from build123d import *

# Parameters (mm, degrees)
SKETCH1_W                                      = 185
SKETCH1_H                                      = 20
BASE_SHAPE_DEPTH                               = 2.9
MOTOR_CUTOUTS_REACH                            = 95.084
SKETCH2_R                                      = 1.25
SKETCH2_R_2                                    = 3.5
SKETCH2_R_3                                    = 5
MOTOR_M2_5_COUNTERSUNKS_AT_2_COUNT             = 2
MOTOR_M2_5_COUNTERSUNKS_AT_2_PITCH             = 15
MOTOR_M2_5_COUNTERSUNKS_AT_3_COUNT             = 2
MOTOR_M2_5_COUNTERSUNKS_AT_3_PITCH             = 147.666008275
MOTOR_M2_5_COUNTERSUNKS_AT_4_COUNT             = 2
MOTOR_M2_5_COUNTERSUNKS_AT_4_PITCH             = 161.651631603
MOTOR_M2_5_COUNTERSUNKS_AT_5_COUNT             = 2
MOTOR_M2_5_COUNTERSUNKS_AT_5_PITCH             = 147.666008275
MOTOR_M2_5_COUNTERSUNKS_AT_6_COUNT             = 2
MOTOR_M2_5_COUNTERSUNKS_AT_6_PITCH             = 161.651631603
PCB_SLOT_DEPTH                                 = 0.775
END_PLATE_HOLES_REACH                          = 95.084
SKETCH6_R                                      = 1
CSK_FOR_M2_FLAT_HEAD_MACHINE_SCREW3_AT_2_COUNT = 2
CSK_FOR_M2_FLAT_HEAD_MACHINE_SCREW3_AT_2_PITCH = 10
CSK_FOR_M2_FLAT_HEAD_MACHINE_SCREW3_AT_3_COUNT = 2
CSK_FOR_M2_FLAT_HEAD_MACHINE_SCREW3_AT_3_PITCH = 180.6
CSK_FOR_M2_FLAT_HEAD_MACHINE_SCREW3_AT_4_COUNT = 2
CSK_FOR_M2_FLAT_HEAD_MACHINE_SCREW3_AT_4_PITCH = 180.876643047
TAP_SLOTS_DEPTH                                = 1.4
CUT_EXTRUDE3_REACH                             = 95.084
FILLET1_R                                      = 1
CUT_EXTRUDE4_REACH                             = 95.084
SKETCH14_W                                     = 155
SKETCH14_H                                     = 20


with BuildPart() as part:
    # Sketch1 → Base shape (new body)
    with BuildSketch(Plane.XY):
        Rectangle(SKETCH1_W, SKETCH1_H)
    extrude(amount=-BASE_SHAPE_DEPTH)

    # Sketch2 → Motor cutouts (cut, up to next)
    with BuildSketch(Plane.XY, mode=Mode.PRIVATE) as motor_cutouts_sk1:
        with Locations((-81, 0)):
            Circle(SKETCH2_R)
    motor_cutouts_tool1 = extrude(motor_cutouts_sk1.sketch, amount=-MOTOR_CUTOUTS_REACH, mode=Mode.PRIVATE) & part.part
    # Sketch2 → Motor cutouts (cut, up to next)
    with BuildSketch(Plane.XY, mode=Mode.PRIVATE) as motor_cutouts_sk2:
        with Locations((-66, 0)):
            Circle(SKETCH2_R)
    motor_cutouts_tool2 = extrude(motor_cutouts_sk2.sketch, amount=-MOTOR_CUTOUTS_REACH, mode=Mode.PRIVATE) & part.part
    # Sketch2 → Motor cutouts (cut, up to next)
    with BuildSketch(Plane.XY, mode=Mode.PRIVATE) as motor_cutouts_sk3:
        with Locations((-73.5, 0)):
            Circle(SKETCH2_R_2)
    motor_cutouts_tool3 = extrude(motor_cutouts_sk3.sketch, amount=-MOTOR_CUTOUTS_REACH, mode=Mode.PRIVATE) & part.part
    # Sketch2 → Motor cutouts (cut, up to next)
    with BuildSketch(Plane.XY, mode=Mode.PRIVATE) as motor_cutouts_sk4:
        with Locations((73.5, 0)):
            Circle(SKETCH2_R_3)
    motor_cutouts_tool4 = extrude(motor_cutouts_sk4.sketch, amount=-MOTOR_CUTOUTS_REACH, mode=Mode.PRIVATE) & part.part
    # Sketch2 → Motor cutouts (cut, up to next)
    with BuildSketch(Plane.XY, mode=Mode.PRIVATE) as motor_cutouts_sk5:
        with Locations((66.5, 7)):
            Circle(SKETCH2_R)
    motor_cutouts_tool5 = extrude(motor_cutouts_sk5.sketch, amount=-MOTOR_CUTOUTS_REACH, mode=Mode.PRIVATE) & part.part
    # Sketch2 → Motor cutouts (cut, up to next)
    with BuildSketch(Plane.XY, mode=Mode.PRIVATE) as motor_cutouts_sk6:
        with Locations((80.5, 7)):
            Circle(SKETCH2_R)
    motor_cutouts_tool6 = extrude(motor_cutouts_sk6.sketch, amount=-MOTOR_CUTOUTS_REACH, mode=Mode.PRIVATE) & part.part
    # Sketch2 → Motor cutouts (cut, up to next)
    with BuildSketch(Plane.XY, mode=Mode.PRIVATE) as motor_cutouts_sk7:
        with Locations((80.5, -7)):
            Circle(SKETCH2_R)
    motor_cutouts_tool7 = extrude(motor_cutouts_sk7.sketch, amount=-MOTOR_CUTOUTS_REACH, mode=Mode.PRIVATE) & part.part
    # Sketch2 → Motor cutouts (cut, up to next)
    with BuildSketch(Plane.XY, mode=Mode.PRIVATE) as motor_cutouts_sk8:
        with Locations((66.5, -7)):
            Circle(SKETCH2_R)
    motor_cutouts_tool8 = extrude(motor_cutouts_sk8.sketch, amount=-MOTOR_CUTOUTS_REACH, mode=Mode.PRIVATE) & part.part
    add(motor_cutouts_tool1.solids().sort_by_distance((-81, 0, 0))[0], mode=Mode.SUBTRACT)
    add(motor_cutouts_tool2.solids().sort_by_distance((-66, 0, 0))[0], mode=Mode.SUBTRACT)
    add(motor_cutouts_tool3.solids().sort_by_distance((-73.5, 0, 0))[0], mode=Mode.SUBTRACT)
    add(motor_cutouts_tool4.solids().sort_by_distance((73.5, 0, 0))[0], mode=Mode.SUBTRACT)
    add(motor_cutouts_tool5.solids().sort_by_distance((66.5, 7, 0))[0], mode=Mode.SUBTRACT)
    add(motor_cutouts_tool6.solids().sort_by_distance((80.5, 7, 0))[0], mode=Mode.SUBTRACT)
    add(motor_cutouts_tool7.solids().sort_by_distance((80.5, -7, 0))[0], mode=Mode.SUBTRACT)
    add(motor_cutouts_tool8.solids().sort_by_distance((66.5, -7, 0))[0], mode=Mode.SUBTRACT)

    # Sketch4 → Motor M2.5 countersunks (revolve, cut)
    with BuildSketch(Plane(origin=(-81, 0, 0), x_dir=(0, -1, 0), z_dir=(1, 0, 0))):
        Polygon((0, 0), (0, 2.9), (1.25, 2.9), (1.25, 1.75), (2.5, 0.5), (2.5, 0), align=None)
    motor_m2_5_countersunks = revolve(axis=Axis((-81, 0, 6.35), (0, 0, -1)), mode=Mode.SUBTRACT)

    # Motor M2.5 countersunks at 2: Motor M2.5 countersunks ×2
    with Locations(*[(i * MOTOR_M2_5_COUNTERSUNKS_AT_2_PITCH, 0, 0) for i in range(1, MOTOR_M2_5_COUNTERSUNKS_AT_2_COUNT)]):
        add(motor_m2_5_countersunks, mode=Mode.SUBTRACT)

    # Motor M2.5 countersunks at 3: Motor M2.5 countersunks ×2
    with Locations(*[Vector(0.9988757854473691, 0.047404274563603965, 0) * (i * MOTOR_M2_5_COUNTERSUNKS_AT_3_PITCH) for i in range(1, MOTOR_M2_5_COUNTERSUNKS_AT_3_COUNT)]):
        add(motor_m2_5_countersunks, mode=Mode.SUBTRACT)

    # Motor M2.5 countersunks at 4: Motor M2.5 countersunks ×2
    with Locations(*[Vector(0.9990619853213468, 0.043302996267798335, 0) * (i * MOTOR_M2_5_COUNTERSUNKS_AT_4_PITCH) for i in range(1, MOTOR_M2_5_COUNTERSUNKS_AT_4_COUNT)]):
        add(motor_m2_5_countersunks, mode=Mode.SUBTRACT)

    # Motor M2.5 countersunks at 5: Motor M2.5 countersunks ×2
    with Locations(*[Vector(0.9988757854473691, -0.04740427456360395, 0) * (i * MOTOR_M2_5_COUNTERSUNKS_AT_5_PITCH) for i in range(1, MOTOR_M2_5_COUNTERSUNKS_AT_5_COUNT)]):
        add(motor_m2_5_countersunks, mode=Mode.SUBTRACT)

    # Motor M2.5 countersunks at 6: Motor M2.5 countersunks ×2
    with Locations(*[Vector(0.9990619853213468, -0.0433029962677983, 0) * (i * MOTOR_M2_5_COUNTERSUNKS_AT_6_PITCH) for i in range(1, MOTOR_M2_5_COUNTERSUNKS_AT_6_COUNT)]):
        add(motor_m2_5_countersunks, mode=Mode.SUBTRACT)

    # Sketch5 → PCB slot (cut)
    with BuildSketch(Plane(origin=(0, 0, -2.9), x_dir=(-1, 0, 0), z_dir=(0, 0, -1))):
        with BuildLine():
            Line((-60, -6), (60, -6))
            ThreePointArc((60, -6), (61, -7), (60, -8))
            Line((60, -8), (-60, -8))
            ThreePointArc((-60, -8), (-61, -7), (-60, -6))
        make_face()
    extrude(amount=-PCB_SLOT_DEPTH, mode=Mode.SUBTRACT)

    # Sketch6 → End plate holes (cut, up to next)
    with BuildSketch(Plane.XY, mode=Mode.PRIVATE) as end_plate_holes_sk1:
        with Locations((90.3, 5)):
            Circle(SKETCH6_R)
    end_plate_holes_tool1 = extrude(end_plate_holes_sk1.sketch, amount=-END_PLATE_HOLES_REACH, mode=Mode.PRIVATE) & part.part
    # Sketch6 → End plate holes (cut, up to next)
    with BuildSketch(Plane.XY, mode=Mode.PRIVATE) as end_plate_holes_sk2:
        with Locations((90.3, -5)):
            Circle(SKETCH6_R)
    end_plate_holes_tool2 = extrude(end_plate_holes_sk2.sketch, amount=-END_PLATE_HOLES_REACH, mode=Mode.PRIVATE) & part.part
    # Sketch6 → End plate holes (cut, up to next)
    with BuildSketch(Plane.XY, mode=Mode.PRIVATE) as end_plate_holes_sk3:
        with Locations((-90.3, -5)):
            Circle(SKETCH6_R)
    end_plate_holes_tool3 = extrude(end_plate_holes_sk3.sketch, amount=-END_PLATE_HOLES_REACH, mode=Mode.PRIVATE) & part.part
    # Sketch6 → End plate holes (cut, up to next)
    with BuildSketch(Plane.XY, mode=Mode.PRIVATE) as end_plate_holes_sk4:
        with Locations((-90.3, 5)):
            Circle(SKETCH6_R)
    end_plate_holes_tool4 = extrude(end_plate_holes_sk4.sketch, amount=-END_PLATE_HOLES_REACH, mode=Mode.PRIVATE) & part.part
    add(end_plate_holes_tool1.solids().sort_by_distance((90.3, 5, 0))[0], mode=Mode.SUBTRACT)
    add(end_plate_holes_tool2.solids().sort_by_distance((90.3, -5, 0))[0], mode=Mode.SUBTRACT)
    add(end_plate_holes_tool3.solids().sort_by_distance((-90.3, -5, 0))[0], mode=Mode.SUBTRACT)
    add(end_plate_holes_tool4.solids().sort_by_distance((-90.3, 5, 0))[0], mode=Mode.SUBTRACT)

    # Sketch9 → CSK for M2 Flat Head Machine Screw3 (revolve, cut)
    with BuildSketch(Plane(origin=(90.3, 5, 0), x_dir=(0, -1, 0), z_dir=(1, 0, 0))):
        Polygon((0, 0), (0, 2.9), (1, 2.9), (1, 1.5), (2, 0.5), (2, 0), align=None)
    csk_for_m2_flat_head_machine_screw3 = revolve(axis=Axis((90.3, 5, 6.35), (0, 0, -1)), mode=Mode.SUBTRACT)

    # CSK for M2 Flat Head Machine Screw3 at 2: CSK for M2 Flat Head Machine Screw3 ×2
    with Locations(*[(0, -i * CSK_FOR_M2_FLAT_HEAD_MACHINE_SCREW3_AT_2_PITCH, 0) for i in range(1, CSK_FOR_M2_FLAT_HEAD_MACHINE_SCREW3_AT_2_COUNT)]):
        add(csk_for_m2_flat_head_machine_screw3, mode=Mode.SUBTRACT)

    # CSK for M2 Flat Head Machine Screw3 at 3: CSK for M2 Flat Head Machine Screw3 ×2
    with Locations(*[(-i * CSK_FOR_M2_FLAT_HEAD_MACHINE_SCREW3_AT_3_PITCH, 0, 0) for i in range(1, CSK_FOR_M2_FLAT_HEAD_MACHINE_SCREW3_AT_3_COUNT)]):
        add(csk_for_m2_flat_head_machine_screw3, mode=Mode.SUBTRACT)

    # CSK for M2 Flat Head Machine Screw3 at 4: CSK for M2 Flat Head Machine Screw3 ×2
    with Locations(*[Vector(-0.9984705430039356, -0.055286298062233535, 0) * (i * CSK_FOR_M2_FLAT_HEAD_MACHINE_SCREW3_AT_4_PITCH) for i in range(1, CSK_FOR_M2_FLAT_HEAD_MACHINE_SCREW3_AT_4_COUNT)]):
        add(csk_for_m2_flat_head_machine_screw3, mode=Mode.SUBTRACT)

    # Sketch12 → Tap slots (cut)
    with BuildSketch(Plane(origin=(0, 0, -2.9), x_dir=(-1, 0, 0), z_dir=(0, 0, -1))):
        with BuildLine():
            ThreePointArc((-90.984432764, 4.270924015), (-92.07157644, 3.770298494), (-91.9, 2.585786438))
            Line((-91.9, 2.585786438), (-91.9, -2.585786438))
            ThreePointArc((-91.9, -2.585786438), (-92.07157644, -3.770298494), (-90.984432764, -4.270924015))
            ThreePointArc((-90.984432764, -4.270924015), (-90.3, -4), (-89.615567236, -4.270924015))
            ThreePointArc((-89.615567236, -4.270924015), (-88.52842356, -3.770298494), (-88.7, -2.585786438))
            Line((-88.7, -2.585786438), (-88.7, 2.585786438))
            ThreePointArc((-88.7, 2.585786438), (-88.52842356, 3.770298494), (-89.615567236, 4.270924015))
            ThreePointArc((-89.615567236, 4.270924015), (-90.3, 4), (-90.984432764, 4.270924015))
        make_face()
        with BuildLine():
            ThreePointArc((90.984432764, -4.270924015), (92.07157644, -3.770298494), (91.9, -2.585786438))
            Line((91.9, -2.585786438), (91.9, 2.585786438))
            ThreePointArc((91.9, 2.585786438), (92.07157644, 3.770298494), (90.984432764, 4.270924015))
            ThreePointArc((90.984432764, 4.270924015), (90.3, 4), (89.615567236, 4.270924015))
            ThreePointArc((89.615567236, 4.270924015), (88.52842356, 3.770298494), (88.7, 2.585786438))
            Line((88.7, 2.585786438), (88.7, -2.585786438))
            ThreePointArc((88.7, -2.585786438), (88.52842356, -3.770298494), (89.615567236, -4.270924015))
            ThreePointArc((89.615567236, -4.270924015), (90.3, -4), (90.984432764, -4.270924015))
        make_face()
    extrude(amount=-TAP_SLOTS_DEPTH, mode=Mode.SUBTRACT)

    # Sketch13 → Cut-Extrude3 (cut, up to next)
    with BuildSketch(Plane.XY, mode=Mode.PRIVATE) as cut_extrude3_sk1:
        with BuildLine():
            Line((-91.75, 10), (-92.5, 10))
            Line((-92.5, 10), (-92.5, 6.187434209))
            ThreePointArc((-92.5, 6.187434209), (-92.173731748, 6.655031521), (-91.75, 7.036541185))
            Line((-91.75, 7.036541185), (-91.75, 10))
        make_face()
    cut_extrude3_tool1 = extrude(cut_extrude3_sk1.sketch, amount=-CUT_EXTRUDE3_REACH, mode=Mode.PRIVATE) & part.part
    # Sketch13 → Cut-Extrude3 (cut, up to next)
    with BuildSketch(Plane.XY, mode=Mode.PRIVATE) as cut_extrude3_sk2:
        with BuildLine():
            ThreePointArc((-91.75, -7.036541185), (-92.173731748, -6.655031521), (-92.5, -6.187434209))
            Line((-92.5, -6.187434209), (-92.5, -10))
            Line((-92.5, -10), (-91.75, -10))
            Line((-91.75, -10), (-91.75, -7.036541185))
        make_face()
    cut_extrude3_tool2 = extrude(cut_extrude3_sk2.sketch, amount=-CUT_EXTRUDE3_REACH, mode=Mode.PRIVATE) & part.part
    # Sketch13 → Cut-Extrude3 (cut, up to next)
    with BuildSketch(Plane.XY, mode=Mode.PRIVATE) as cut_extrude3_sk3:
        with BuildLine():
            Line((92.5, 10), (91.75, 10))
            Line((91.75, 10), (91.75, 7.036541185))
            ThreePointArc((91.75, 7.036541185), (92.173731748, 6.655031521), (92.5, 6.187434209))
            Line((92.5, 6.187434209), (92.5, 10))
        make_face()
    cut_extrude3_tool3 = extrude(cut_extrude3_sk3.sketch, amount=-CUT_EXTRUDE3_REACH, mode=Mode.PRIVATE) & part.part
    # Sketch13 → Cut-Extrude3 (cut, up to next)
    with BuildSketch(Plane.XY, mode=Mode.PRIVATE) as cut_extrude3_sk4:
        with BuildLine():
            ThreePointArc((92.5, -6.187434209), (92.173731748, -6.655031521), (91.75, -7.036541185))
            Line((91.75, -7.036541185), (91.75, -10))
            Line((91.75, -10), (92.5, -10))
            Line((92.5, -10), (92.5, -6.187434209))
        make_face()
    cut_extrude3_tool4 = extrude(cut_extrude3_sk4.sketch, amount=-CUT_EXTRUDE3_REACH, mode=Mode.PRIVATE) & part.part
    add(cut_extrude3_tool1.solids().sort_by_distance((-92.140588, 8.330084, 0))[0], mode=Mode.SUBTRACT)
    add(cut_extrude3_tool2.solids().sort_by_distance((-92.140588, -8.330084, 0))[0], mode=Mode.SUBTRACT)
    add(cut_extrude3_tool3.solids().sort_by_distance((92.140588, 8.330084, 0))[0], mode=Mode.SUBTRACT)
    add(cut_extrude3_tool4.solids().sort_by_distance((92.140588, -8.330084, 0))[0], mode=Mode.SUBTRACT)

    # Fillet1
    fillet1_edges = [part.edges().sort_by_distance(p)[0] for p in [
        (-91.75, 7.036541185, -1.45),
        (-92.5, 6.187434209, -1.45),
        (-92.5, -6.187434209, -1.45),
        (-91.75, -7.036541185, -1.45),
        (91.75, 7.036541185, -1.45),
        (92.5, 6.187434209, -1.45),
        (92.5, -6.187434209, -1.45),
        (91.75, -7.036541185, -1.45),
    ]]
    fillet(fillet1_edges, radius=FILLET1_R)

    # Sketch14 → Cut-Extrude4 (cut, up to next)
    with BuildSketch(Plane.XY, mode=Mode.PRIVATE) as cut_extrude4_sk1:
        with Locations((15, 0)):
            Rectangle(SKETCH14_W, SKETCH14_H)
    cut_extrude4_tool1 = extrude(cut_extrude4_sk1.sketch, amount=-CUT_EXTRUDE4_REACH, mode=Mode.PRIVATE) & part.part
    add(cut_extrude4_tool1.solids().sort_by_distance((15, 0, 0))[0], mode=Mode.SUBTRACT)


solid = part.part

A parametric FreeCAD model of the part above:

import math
import FreeCAD as App
import Part
import Sketcher
from FreeCAD import Vector
Q = App.Units.Quantity


def edges_at(feature, points):
    """Names of the edges that pass closest to the given points."""
    edges = feature.Shape.Edges
    near = lambda p: min(range(len(edges)), key=lambda i: edges[i].distToShape(Part.Vertex(*p))[0])
    return sorted({f"Edge{near(p) + 1}" for p in points})

doc = App.newDocument("Part")
params = doc.addObject("Spreadsheet::Sheet", "Params")
for row, (alias, value) in enumerate([
    ("sketch1_width", "185 mm"),
    ("sketch1_height", "20 mm"),
    ("pad1_length", "2.9 mm"),
    ("sketch2_diameter", "2.5 mm"),
    ("sketch3_diameter", "2.5 mm"),
    ("sketch4_diameter", "7 mm"),
    ("sketch5_diameter", "10 mm"),
    ("sketch6_diameter", "2.5 mm"),
    ("sketch7_diameter", "2.5 mm"),
    ("sketch8_diameter", "2.5 mm"),
    ("sketch9_diameter", "2.5 mm"),
    ("sketch10_width", "2.5 mm"),
    ("sketch10_height", "2.9 mm"),
    ("sketch10_height2", "0.5 mm"),
    ("sketch10_width2", "1.25 mm"),
    ("groove_angle", "360 deg"),
    ("linearpattern_pitch", "15 mm"),
    ("linearpattern2_pitch", "147.666008 mm"),
    ("linearpattern3_pitch", "161.651632 mm"),
    ("linearpattern4_pitch", "147.666008 mm"),
    ("linearpattern5_pitch", "161.651632 mm"),
    ("sketch11_radius", "1 mm"),
    ("sketch11_width", "120 mm"),
    ("pocket9_length", "0.775 mm"),
    ("sketch12_diameter", "2 mm"),
    ("sketch13_diameter", "2 mm"),
    ("sketch14_diameter", "2 mm"),
    ("sketch15_diameter", "2 mm"),
    ("sketch16_width", "2 mm"),
    ("sketch16_width2", "1 mm"),
    ("sketch16_height", "2.9 mm"),
    ("sketch16_height2", "0.5 mm"),
    ("groove2_angle", "360 deg"),
    ("linearpattern6_pitch", "10 mm"),
    ("linearpattern7_pitch", "180.6 mm"),
    ("linearpattern8_pitch", "180.876643 mm"),
    ("sketch17_radius", "1 mm"),
    ("pocket14_length", "1.4 mm"),
    ("sketch18_radius", "2.5 mm"),
    ("sketch18_width", "0.75 mm"),
    ("sketch19_radius", "2.5 mm"),
    ("sketch19_width", "0.75 mm"),
    ("sketch20_radius", "2.5 mm"),
    ("sketch20_width", "0.75 mm"),
    ("sketch21_radius", "2.5 mm"),
    ("sketch21_width", "0.75 mm"),
    ("fillet_radius", "1 mm"),
    ("sketch22_width", "155 mm"),
    ("sketch22_height", "20 mm"),
], start=1):
    params.set(f"A{row}", alias)
    params.set(f"B{row}", "=" + value)
    params.setAlias(f"B{row}", alias)

body = doc.addObject("PartDesign::Body", "Body")

# Sketch on XY plane
sketch1 = body.newObject("Sketcher::SketchObject", "Sketch")
sketch1.AttachmentSupport = (doc.getObject("XY_Plane"), [""])
sketch1.MapMode = "FlatFace"
sketch1.addGeometry(Part.LineSegment(Vector(-92.5, 10, 0), Vector(-92.5, -10, 0)), False)
sketch1.addGeometry(Part.LineSegment(Vector(-92.5, -10, 0), Vector(92.5, -10, 0)), False)
sketch1.addGeometry(Part.LineSegment(Vector(92.5, -10, 0), Vector(92.5, 10, 0)), False)
sketch1.addGeometry(Part.LineSegment(Vector(92.5, 10, 0), Vector(-92.5, 10, 0)), False)
sketch1.addConstraint(Sketcher.Constraint("Coincident", 0, 2, 1, 1))
sketch1.addConstraint(Sketcher.Constraint("Coincident", 1, 2, 2, 1))
sketch1.addConstraint(Sketcher.Constraint("Coincident", 2, 2, 3, 1))
sketch1.addConstraint(Sketcher.Constraint("Coincident", 3, 2, 0, 1))
sketch1.addConstraint(Sketcher.Constraint("Vertical", 0))
sketch1.addConstraint(Sketcher.Constraint("Horizontal", 1))
sketch1.addConstraint(Sketcher.Constraint("Vertical", 2))
sketch1.addConstraint(Sketcher.Constraint("Horizontal", 3))
sketch1.addConstraint(Sketcher.Constraint("Symmetric", 0, 2, 2, 2, -1, 1))
sketch1.addConstraint(Sketcher.Constraint("DistanceX", 1, 1, 1, 2, 185.0))
sketch1.addConstraint(Sketcher.Constraint("DistanceY", 0, 2, 0, 1, 20.0))
sketch1.setExpression("Constraints[9]", "Params.sketch1_width")
sketch1.setExpression("Constraints[10]", "Params.sketch1_height")
pad1 = body.newObject("PartDesign::Pad", "Pad")
pad1.Profile = sketch1
pad1.setExpression("Length", "Params.pad1_length")
pad1.Reversed = True

# Sketch on XY plane
sketch2 = body.newObject("Sketcher::SketchObject", "Sketch001")
sketch2.AttachmentSupport = (doc.getObject("XY_Plane"), [""])
sketch2.MapMode = "FlatFace"
sketch2.addGeometry(Part.Circle(Vector(-81, 0, 0), Vector(0, 0, 1), 1.25), False)
sketch2.addConstraint(Sketcher.Constraint("PointOnObject", 0, 3, -1))
sketch2.addConstraint(Sketcher.Constraint("Diameter", 0, 2.5))
sketch2.addConstraint(Sketcher.Constraint("DistanceX", 0, 3, -1, 1, 81.0))
sketch2.setExpression("Constraints[1]", "Params.sketch2_diameter")
pocket1 = body.newObject("PartDesign::Pocket", "Pocket")
pocket1.Profile = sketch2
pocket1.Type = "UpToFirst"

# Sketch on XY plane
sketch3 = body.newObject("Sketcher::SketchObject", "Sketch002")
sketch3.AttachmentSupport = (doc.getObject("XY_Plane"), [""])
sketch3.MapMode = "FlatFace"
sketch3.addGeometry(Part.Circle(Vector(-66, 0, 0), Vector(0, 0, 1), 1.25), False)
sketch3.addConstraint(Sketcher.Constraint("PointOnObject", 0, 3, -1))
sketch3.addConstraint(Sketcher.Constraint("Diameter", 0, 2.5))
sketch3.addConstraint(Sketcher.Constraint("DistanceX", 0, 3, -1, 1, 66.0))
sketch3.setExpression("Constraints[1]", "Params.sketch3_diameter")
pocket2 = body.newObject("PartDesign::Pocket", "Pocket001")
pocket2.Profile = sketch3
pocket2.Type = "UpToFirst"

# Sketch on XY plane
sketch4 = body.newObject("Sketcher::SketchObject", "Sketch003")
sketch4.AttachmentSupport = (doc.getObject("XY_Plane"), [""])
sketch4.MapMode = "FlatFace"
sketch4.addGeometry(Part.Circle(Vector(-73.5, 0, 0), Vector(0, 0, 1), 3.5), False)
sketch4.addConstraint(Sketcher.Constraint("PointOnObject", 0, 3, -1))
sketch4.addConstraint(Sketcher.Constraint("Diameter", 0, 7.0))
sketch4.addConstraint(Sketcher.Constraint("DistanceX", 0, 3, -1, 1, 73.5))
sketch4.setExpression("Constraints[1]", "Params.sketch4_diameter")
pocket3 = body.newObject("PartDesign::Pocket", "Pocket002")
pocket3.Profile = sketch4
pocket3.Type = "UpToFirst"

# Sketch on XY plane
sketch5 = body.newObject("Sketcher::SketchObject", "Sketch004")
sketch5.AttachmentSupport = (doc.getObject("XY_Plane"), [""])
sketch5.MapMode = "FlatFace"
sketch5.addGeometry(Part.Circle(Vector(73.5, 0, 0), Vector(0, 0, 1), 5), False)
sketch5.addConstraint(Sketcher.Constraint("PointOnObject", 0, 3, -1))
sketch5.addConstraint(Sketcher.Constraint("Diameter", 0, 10.0))
sketch5.addConstraint(Sketcher.Constraint("DistanceX", -1, 1, 0, 3, 73.5))
sketch5.setExpression("Constraints[1]", "Params.sketch5_diameter")
pocket4 = body.newObject("PartDesign::Pocket", "Pocket003")
pocket4.Profile = sketch5
pocket4.Type = "UpToFirst"

# Sketch on XY plane
sketch6 = body.newObject("Sketcher::SketchObject", "Sketch005")
sketch6.AttachmentSupport = (doc.getObject("XY_Plane"), [""])
sketch6.MapMode = "FlatFace"
sketch6.addGeometry(Part.Circle(Vector(66.5, 7, 0), Vector(0, 0, 1), 1.25), False)
sketch6.addConstraint(Sketcher.Constraint("Diameter", 0, 2.5))
sketch6.addConstraint(Sketcher.Constraint("DistanceY", -1, 1, 0, 3, 7.0))
sketch6.addConstraint(Sketcher.Constraint("DistanceX", -1, 1, 0, 3, 66.5))
sketch6.setExpression("Constraints[0]", "Params.sketch6_diameter")
pocket5 = body.newObject("PartDesign::Pocket", "Pocket004")
pocket5.Profile = sketch6
pocket5.Type = "UpToFirst"

# Sketch on XY plane
sketch7 = body.newObject("Sketcher::SketchObject", "Sketch006")
sketch7.AttachmentSupport = (doc.getObject("XY_Plane"), [""])
sketch7.MapMode = "FlatFace"
sketch7.addGeometry(Part.Circle(Vector(80.5, 7, 0), Vector(0, 0, 1), 1.25), False)
sketch7.addConstraint(Sketcher.Constraint("Diameter", 0, 2.5))
sketch7.addConstraint(Sketcher.Constraint("DistanceY", -1, 1, 0, 3, 7.0))
sketch7.addConstraint(Sketcher.Constraint("DistanceX", -1, 1, 0, 3, 80.5))
sketch7.setExpression("Constraints[0]", "Params.sketch7_diameter")
pocket6 = body.newObject("PartDesign::Pocket", "Pocket005")
pocket6.Profile = sketch7
pocket6.Type = "UpToFirst"

# Sketch on XY plane
sketch8 = body.newObject("Sketcher::SketchObject", "Sketch007")
sketch8.AttachmentSupport = (doc.getObject("XY_Plane"), [""])
sketch8.MapMode = "FlatFace"
sketch8.addGeometry(Part.Circle(Vector(80.5, -7, 0), Vector(0, 0, 1), 1.25), False)
sketch8.addConstraint(Sketcher.Constraint("Diameter", 0, 2.5))
sketch8.addConstraint(Sketcher.Constraint("DistanceY", 0, 3, -1, 1, 7.0))
sketch8.addConstraint(Sketcher.Constraint("DistanceX", -1, 1, 0, 3, 80.5))
sketch8.setExpression("Constraints[0]", "Params.sketch8_diameter")
pocket7 = body.newObject("PartDesign::Pocket", "Pocket006")
pocket7.Profile = sketch8
pocket7.Type = "UpToFirst"

# Sketch on XY plane
sketch9 = body.newObject("Sketcher::SketchObject", "Sketch008")
sketch9.AttachmentSupport = (doc.getObject("XY_Plane"), [""])
sketch9.MapMode = "FlatFace"
sketch9.addGeometry(Part.Circle(Vector(66.5, -7, 0), Vector(0, 0, 1), 1.25), False)
sketch9.addConstraint(Sketcher.Constraint("Diameter", 0, 2.5))
sketch9.addConstraint(Sketcher.Constraint("DistanceY", 0, 3, -1, 1, 7.0))
sketch9.addConstraint(Sketcher.Constraint("DistanceX", -1, 1, 0, 3, 66.5))
sketch9.setExpression("Constraints[0]", "Params.sketch9_diameter")
pocket8 = body.newObject("PartDesign::Pocket", "Pocket007")
pocket8.Profile = sketch9
pocket8.Type = "UpToFirst"

# Sketch on YZ plane
sketch10 = body.newObject("Sketcher::SketchObject", "Sketch009")
sketch10.AttachmentSupport = (doc.getObject("YZ_Plane"), [""])
sketch10.MapMode = "FlatFace"
sketch10.AttachmentOffset = App.Placement(Vector(0, 0, -81), App.Rotation())
sketch10.addGeometry(Part.LineSegment(Vector(0, -2.9, 0), Vector(0, 0, 0)), False)
sketch10.addGeometry(Part.LineSegment(Vector(0, 0, 0), Vector(-2.5, 0, 0)), False)
sketch10.addGeometry(Part.LineSegment(Vector(-2.5, 0, 0), Vector(-2.5, -0.5, 0)), False)
sketch10.addGeometry(Part.LineSegment(Vector(-2.5, -0.5, 0), Vector(-1.25, -1.75, 0)), False)
sketch10.addGeometry(Part.LineSegment(Vector(-1.25, -1.75, 0), Vector(-1.25, -2.9, 0)), False)
sketch10.addGeometry(Part.LineSegment(Vector(-1.25, -2.9, 0), Vector(0, -2.9, 0)), False)
sketch10.addConstraint(Sketcher.Constraint("Coincident", 0, 2, 1, 1))
sketch10.addConstraint(Sketcher.Constraint("Coincident", 1, 2, 2, 1))
sketch10.addConstraint(Sketcher.Constraint("Coincident", 2, 2, 3, 1))
sketch10.addConstraint(Sketcher.Constraint("Coincident", 3, 2, 4, 1))
sketch10.addConstraint(Sketcher.Constraint("Coincident", 4, 2, 5, 1))
sketch10.addConstraint(Sketcher.Constraint("Coincident", 5, 2, 0, 1))
sketch10.addConstraint(Sketcher.Constraint("Vertical", 0))
sketch10.addConstraint(Sketcher.Constraint("Horizontal", 1))
sketch10.addConstraint(Sketcher.Constraint("Vertical", 2))
sketch10.addConstraint(Sketcher.Constraint("Vertical", 4))
sketch10.addConstraint(Sketcher.Constraint("Horizontal", 5))
sketch10.addConstraint(Sketcher.Constraint("Coincident", 0, 2, -1, 1))
sketch10.addConstraint(Sketcher.Constraint("Angle", 3, Q("-45 deg")))
sketch10.addConstraint(Sketcher.Constraint("DistanceX", 1, 2, 1, 1, 2.5))
sketch10.addConstraint(Sketcher.Constraint("DistanceY", 0, 1, 0, 2, 2.9))
sketch10.addConstraint(Sketcher.Constraint("DistanceY", 2, 2, 2, 1, 0.5))
sketch10.addConstraint(Sketcher.Constraint("DistanceX", 5, 1, 5, 2, 1.25))
sketch10.setExpression("Constraints[13]", "Params.sketch10_width")
sketch10.setExpression("Constraints[14]", "Params.sketch10_height")
sketch10.setExpression("Constraints[15]", "Params.sketch10_height2")
sketch10.setExpression("Constraints[16]", "Params.sketch10_width2")
groove = body.newObject("PartDesign::Groove", "Groove")
groove.Profile = sketch10
groove.ReferenceAxis = (sketch10, ["V_Axis"])
groove.setExpression("Angle", "Params.groove_angle")
doc.recompute()

linearpattern = body.newObject("PartDesign::LinearPattern", "LinearPattern")
linearpattern.Originals = [groove]
linearpattern.Direction = (doc.getObject("X_Axis"), [""])
linearpattern.Mode = "offset"
linearpattern.setExpression("Offset", "Params.linearpattern_pitch")
linearpattern.Occurrences = 2
body.Tip = linearpattern
doc.recompute()

datumline = body.newObject("PartDesign::Line", "DatumLine")
datumline.Placement = App.Placement(Vector(0, 0, 0), App.Rotation(Vector(0, 0, 1), Vector(0.998875785, 0.047404275, 0)))
linearpattern2 = body.newObject("PartDesign::LinearPattern", "LinearPattern001")
linearpattern2.Originals = [groove]
linearpattern2.Direction = (datumline, [""])
linearpattern2.Mode = "offset"
linearpattern2.setExpression("Offset", "Params.linearpattern2_pitch")
linearpattern2.Occurrences = 2
body.Tip = linearpattern2
doc.recompute()

datumline2 = body.newObject("PartDesign::Line", "DatumLine001")
datumline2.Placement = App.Placement(Vector(0, 0, 0), App.Rotation(Vector(0, 0, 1), Vector(0.999061985, 0.043302996, 0)))
linearpattern3 = body.newObject("PartDesign::LinearPattern", "LinearPattern002")
linearpattern3.Originals = [groove]
linearpattern3.Direction = (datumline2, [""])
linearpattern3.Mode = "offset"
linearpattern3.setExpression("Offset", "Params.linearpattern3_pitch")
linearpattern3.Occurrences = 2
body.Tip = linearpattern3
doc.recompute()

datumline3 = body.newObject("PartDesign::Line", "DatumLine002")
datumline3.Placement = App.Placement(Vector(0, 0, 0), App.Rotation(Vector(0, 0, 1), Vector(0.998875785, -0.047404275, 0)))
linearpattern4 = body.newObject("PartDesign::LinearPattern", "LinearPattern003")
linearpattern4.Originals = [groove]
linearpattern4.Direction = (datumline3, [""])
linearpattern4.Mode = "offset"
linearpattern4.setExpression("Offset", "Params.linearpattern4_pitch")
linearpattern4.Occurrences = 2
body.Tip = linearpattern4
doc.recompute()

datumline4 = body.newObject("PartDesign::Line", "DatumLine003")
datumline4.Placement = App.Placement(Vector(0, 0, 0), App.Rotation(Vector(0, 0, 1), Vector(0.999061985, -0.043302996, 0)))
linearpattern5 = body.newObject("PartDesign::LinearPattern", "LinearPattern004")
linearpattern5.Originals = [groove]
linearpattern5.Direction = (datumline4, [""])
linearpattern5.Mode = "offset"
linearpattern5.setExpression("Offset", "Params.linearpattern5_pitch")
linearpattern5.Occurrences = 2
body.Tip = linearpattern5

# Sketch on XY plane
sketch11 = body.newObject("Sketcher::SketchObject", "Sketch010")
sketch11.AttachmentSupport = (doc.getObject("XY_Plane"), [""])
sketch11.MapMode = "FlatFace"
sketch11.AttachmentOffset = App.Placement(Vector(0, 0, -2.9), App.Rotation())
sketch11.addGeometry(Part.LineSegment(Vector(-60, -6, 0), Vector(60, -6, 0)), False)
sketch11.addGeometry(Part.ArcOfCircle(Part.Circle(Vector(60, -7, 0), Vector(0, 0, 1), 1), math.radians(-90), math.radians(90)), False)
sketch11.addGeometry(Part.LineSegment(Vector(60, -8, 0), Vector(-60, -8, 0)), False)
sketch11.addGeometry(Part.ArcOfCircle(Part.Circle(Vector(-60, -7, 0), Vector(0, 0, 1), 1), math.radians(90), math.radians(270)), False)
sketch11.addConstraint(Sketcher.Constraint("Tangent", 0, 2, 1, 2))
sketch11.addConstraint(Sketcher.Constraint("Tangent", 1, 1, 2, 1))
sketch11.addConstraint(Sketcher.Constraint("Tangent", 2, 2, 3, 2))
sketch11.addConstraint(Sketcher.Constraint("Tangent", 3, 1, 0, 1))
sketch11.addConstraint(Sketcher.Constraint("Horizontal", 0))
sketch11.addConstraint(Sketcher.Constraint("Horizontal", 2))
sketch11.addConstraint(Sketcher.Constraint("Radius", 1, 1.0))
sketch11.addConstraint(Sketcher.Constraint("DistanceX", 0, 1, 0, 2, 120.0))
sketch11.addConstraint(Sketcher.Constraint("DistanceX", -1, 1, 1, 3, 60.0))
sketch11.addConstraint(Sketcher.Constraint("DistanceY", 1, 3, -1, 1, 7.0))
sketch11.setExpression("Constraints[6]", "Params.sketch11_radius")
sketch11.setExpression("Constraints[7]", "Params.sketch11_width")
pocket9 = body.newObject("PartDesign::Pocket", "Pocket008")
pocket9.Profile = sketch11
pocket9.setExpression("Length", "Params.pocket9_length")
pocket9.Reversed = True

# Sketch on XY plane
sketch12 = body.newObject("Sketcher::SketchObject", "Sketch011")
sketch12.AttachmentSupport = (doc.getObject("XY_Plane"), [""])
sketch12.MapMode = "FlatFace"
sketch12.addGeometry(Part.Circle(Vector(90.3, 5, 0), Vector(0, 0, 1), 1), False)
sketch12.addConstraint(Sketcher.Constraint("Diameter", 0, 2.0))
sketch12.addConstraint(Sketcher.Constraint("DistanceY", -1, 1, 0, 3, 5.0))
sketch12.addConstraint(Sketcher.Constraint("DistanceX", -1, 1, 0, 3, 90.3))
sketch12.setExpression("Constraints[0]", "Params.sketch12_diameter")
pocket10 = body.newObject("PartDesign::Pocket", "Pocket009")
pocket10.Profile = sketch12
pocket10.Type = "UpToFirst"

# Sketch on XY plane
sketch13 = body.newObject("Sketcher::SketchObject", "Sketch012")
sketch13.AttachmentSupport = (doc.getObject("XY_Plane"), [""])
sketch13.MapMode = "FlatFace"
sketch13.addGeometry(Part.Circle(Vector(90.3, -5, 0), Vector(0, 0, 1), 1), False)
sketch13.addConstraint(Sketcher.Constraint("Diameter", 0, 2.0))
sketch13.addConstraint(Sketcher.Constraint("DistanceY", 0, 3, -1, 1, 5.0))
sketch13.addConstraint(Sketcher.Constraint("DistanceX", -1, 1, 0, 3, 90.3))
sketch13.setExpression("Constraints[0]", "Params.sketch13_diameter")
pocket11 = body.newObject("PartDesign::Pocket", "Pocket010")
pocket11.Profile = sketch13
pocket11.Type = "UpToFirst"

# Sketch on XY plane
sketch14 = body.newObject("Sketcher::SketchObject", "Sketch013")
sketch14.AttachmentSupport = (doc.getObject("XY_Plane"), [""])
sketch14.MapMode = "FlatFace"
sketch14.addGeometry(Part.Circle(Vector(-90.3, -5, 0), Vector(0, 0, 1), 1), False)
sketch14.addConstraint(Sketcher.Constraint("Diameter", 0, 2.0))
sketch14.addConstraint(Sketcher.Constraint("DistanceY", 0, 3, -1, 1, 5.0))
sketch14.addConstraint(Sketcher.Constraint("DistanceX", 0, 3, -1, 1, 90.3))
sketch14.setExpression("Constraints[0]", "Params.sketch14_diameter")
pocket12 = body.newObject("PartDesign::Pocket", "Pocket011")
pocket12.Profile = sketch14
pocket12.Type = "UpToFirst"

# Sketch on XY plane
sketch15 = body.newObject("Sketcher::SketchObject", "Sketch014")
sketch15.AttachmentSupport = (doc.getObject("XY_Plane"), [""])
sketch15.MapMode = "FlatFace"
sketch15.addGeometry(Part.Circle(Vector(-90.3, 5, 0), Vector(0, 0, 1), 1), False)
sketch15.addConstraint(Sketcher.Constraint("Diameter", 0, 2.0))
sketch15.addConstraint(Sketcher.Constraint("DistanceY", -1, 1, 0, 3, 5.0))
sketch15.addConstraint(Sketcher.Constraint("DistanceX", 0, 3, -1, 1, 90.3))
sketch15.setExpression("Constraints[0]", "Params.sketch15_diameter")
pocket13 = body.newObject("PartDesign::Pocket", "Pocket012")
pocket13.Profile = sketch15
pocket13.Type = "UpToFirst"

# Sketch on YZ plane
sketch16 = body.newObject("Sketcher::SketchObject", "Sketch015")
sketch16.AttachmentSupport = (doc.getObject("YZ_Plane"), [""])
sketch16.MapMode = "FlatFace"
sketch16.AttachmentOffset = App.Placement(Vector(0, 0, 90.3), App.Rotation())
sketch16.addGeometry(Part.LineSegment(Vector(5, -2.9, 0), Vector(5, 0, 0)), False)
sketch16.addGeometry(Part.LineSegment(Vector(5, 0, 0), Vector(3, 0, 0)), False)
sketch16.addGeometry(Part.LineSegment(Vector(3, 0, 0), Vector(3, -0.5, 0)), False)
sketch16.addGeometry(Part.LineSegment(Vector(3, -0.5, 0), Vector(4, -1.5, 0)), False)
sketch16.addGeometry(Part.LineSegment(Vector(4, -1.5, 0), Vector(4, -2.9, 0)), False)
sketch16.addGeometry(Part.LineSegment(Vector(4, -2.9, 0), Vector(5, -2.9, 0)), False)
sketch16.addGeometry(Part.LineSegment(Vector(5, 0, 0), Vector(5, -2.9, 0)), True)  # axis
sketch16.addConstraint(Sketcher.Constraint("Coincident", 0, 2, 1, 1))
sketch16.addConstraint(Sketcher.Constraint("Coincident", 1, 2, 2, 1))
sketch16.addConstraint(Sketcher.Constraint("Coincident", 2, 2, 3, 1))
sketch16.addConstraint(Sketcher.Constraint("Coincident", 3, 2, 4, 1))
sketch16.addConstraint(Sketcher.Constraint("Coincident", 4, 2, 5, 1))
sketch16.addConstraint(Sketcher.Constraint("Coincident", 5, 2, 0, 1))
sketch16.addConstraint(Sketcher.Constraint("Vertical", 0))
sketch16.addConstraint(Sketcher.Constraint("Horizontal", 1))
sketch16.addConstraint(Sketcher.Constraint("Vertical", 2))
sketch16.addConstraint(Sketcher.Constraint("Vertical", 4))
sketch16.addConstraint(Sketcher.Constraint("Horizontal", 5))
sketch16.addConstraint(Sketcher.Constraint("Vertical", 6))
sketch16.addConstraint(Sketcher.Constraint("Coincident", 6, 1, 0, 2))
sketch16.addConstraint(Sketcher.Constraint("PointOnObject", 0, 2, -1))
sketch16.addConstraint(Sketcher.Constraint("Horizontal", 4, 2, 6, 2))
sketch16.addConstraint(Sketcher.Constraint("DistanceX", 1, 2, 1, 1, 2.0))
sketch16.addConstraint(Sketcher.Constraint("DistanceX", 5, 1, 5, 2, 1.0))
sketch16.addConstraint(Sketcher.Constraint("Angle", 3, Q("-45 deg")))
sketch16.addConstraint(Sketcher.Constraint("DistanceY", 0, 1, 0, 2, 2.9))
sketch16.addConstraint(Sketcher.Constraint("DistanceY", 2, 2, 2, 1, 0.5))
sketch16.addConstraint(Sketcher.Constraint("DistanceX", -1, 1, 0, 2, 5.0))
sketch16.setExpression("Constraints[15]", "Params.sketch16_width")
sketch16.setExpression("Constraints[16]", "Params.sketch16_width2")
sketch16.setExpression("Constraints[18]", "Params.sketch16_height")
sketch16.setExpression("Constraints[19]", "Params.sketch16_height2")
groove2 = body.newObject("PartDesign::Groove", "Groove001")
groove2.Profile = sketch16
groove2.ReferenceAxis = (sketch16, ["Axis0"])
groove2.setExpression("Angle", "Params.groove2_angle")
doc.recompute()

linearpattern6 = body.newObject("PartDesign::LinearPattern", "LinearPattern005")
linearpattern6.Originals = [groove2]
linearpattern6.Direction = (doc.getObject("Y_Axis"), [""])
linearpattern6.Mode = "offset"
linearpattern6.setExpression("Offset", "Params.linearpattern6_pitch")
linearpattern6.Occurrences = 2
linearpattern6.Reversed = True
body.Tip = linearpattern6
doc.recompute()

linearpattern7 = body.newObject("PartDesign::LinearPattern", "LinearPattern006")
linearpattern7.Originals = [groove2]
linearpattern7.Direction = (doc.getObject("X_Axis"), [""])
linearpattern7.Mode = "offset"
linearpattern7.setExpression("Offset", "Params.linearpattern7_pitch")
linearpattern7.Occurrences = 2
linearpattern7.Reversed = True
body.Tip = linearpattern7
doc.recompute()

datumline5 = body.newObject("PartDesign::Line", "DatumLine004")
datumline5.Placement = App.Placement(Vector(0, 0, 0), App.Rotation(Vector(0, 0, 1), Vector(-0.998470543, -0.055286298, 0)))
linearpattern8 = body.newObject("PartDesign::LinearPattern", "LinearPattern007")
linearpattern8.Originals = [groove2]
linearpattern8.Direction = (datumline5, [""])
linearpattern8.Mode = "offset"
linearpattern8.setExpression("Offset", "Params.linearpattern8_pitch")
linearpattern8.Occurrences = 2
body.Tip = linearpattern8

# Sketch on XY plane
sketch17 = body.newObject("Sketcher::SketchObject", "Sketch016")
sketch17.AttachmentSupport = (doc.getObject("XY_Plane"), [""])
sketch17.MapMode = "FlatFace"
sketch17.AttachmentOffset = App.Placement(Vector(0, 0, -2.9), App.Rotation())
sketch17.addGeometry(Part.ArcOfCircle(Part.Circle(Vector(91.192893, 3.292893, 0), Vector(0, 0, 1), 1), math.radians(-45), math.radians(102.032146)), False)
sketch17.addGeometry(Part.LineSegment(Vector(91.9, 2.585786, 0), Vector(91.9, -2.585786, 0)), False)
sketch17.addGeometry(Part.ArcOfCircle(Part.Circle(Vector(91.192893, -3.292893, 0), Vector(0, 0, 1), 1), math.radians(-102.032146), math.radians(45)), False)
sketch17.addGeometry(Part.ArcOfCircle(Part.Circle(Vector(90.3, -5, 0), Vector(0, 0, 1), 1), math.radians(46.808986), math.radians(133.191014)), False)
sketch17.addGeometry(Part.ArcOfCircle(Part.Circle(Vector(89.407107, -3.292893, 0), Vector(0, 0, 1), 1), math.radians(135), math.radians(282.032146)), False)
sketch17.addGeometry(Part.LineSegment(Vector(88.7, -2.585786, 0), Vector(88.7, 2.585786, 0)), False)
sketch17.addGeometry(Part.ArcOfCircle(Part.Circle(Vector(89.407107, 3.292893, 0), Vector(0, 0, 1), 1), math.radians(77.967854), math.radians(225)), False)
sketch17.addGeometry(Part.ArcOfCircle(Part.Circle(Vector(90.3, 5, 0), Vector(0, 0, 1), 1), math.radians(-133.191014), math.radians(-46.808986)), False)
sketch17.addGeometry(Part.ArcOfCircle(Part.Circle(Vector(-91.192893, -3.292893, 0), Vector(0, 0, 1), 1), math.radians(135), math.radians(282.032146)), False)
sketch17.addGeometry(Part.LineSegment(Vector(-91.9, -2.585786, 0), Vector(-91.9, 2.585786, 0)), False)
sketch17.addGeometry(Part.ArcOfCircle(Part.Circle(Vector(-91.192893, 3.292893, 0), Vector(0, 0, 1), 1), math.radians(77.967854), math.radians(225)), False)
sketch17.addGeometry(Part.ArcOfCircle(Part.Circle(Vector(-90.3, 5, 0), Vector(0, 0, 1), 1), math.radians(-133.191014), math.radians(-46.808986)), False)
sketch17.addGeometry(Part.ArcOfCircle(Part.Circle(Vector(-89.407107, 3.292893, 0), Vector(0, 0, 1), 1), math.radians(-45), math.radians(102.032146)), False)
sketch17.addGeometry(Part.LineSegment(Vector(-88.7, 2.585786, 0), Vector(-88.7, -2.585786, 0)), False)
sketch17.addGeometry(Part.ArcOfCircle(Part.Circle(Vector(-89.407107, -3.292893, 0), Vector(0, 0, 1), 1), math.radians(-102.032146), math.radians(45)), False)
sketch17.addGeometry(Part.ArcOfCircle(Part.Circle(Vector(-90.3, -5, 0), Vector(0, 0, 1), 1), math.radians(46.808986), math.radians(133.191014)), False)
sketch17.addConstraint(Sketcher.Constraint("Coincident", 0, 1, 1, 1))
sketch17.addConstraint(Sketcher.Constraint("Coincident", 1, 2, 2, 2))
sketch17.addConstraint(Sketcher.Constraint("Coincident", 2, 1, 3, 1))
sketch17.addConstraint(Sketcher.Constraint("Coincident", 3, 2, 4, 2))
sketch17.addConstraint(Sketcher.Constraint("Coincident", 4, 1, 5, 1))
sketch17.addConstraint(Sketcher.Constraint("Coincident", 5, 2, 6, 2))
sketch17.addConstraint(Sketcher.Constraint("Coincident", 6, 1, 7, 1))
sketch17.addConstraint(Sketcher.Constraint("Coincident", 7, 2, 0, 2))
sketch17.addConstraint(Sketcher.Constraint("Coincident", 8, 1, 9, 1))
sketch17.addConstraint(Sketcher.Constraint("Coincident", 9, 2, 10, 2))
sketch17.addConstraint(Sketcher.Constraint("Coincident", 10, 1, 11, 1))
sketch17.addConstraint(Sketcher.Constraint("Coincident", 11, 2, 12, 2))
sketch17.addConstraint(Sketcher.Constraint("Coincident", 12, 1, 13, 1))
sketch17.addConstraint(Sketcher.Constraint("Coincident", 13, 2, 14, 2))
sketch17.addConstraint(Sketcher.Constraint("Coincident", 14, 1, 15, 1))
sketch17.addConstraint(Sketcher.Constraint("Coincident", 15, 2, 8, 2))
sketch17.addConstraint(Sketcher.Constraint("Vertical", 1))
sketch17.addConstraint(Sketcher.Constraint("Vertical", 5))
sketch17.addConstraint(Sketcher.Constraint("Vertical", 9))
sketch17.addConstraint(Sketcher.Constraint("Vertical", 13))
sketch17.addConstraint(Sketcher.Constraint("Equal", 0, 2))
sketch17.addConstraint(Sketcher.Constraint("Equal", 2, 3))
sketch17.addConstraint(Sketcher.Constraint("Equal", 3, 4))
sketch17.addConstraint(Sketcher.Constraint("Equal", 4, 6))
sketch17.addConstraint(Sketcher.Constraint("Equal", 6, 7))
sketch17.addConstraint(Sketcher.Constraint("Equal", 7, 8))
sketch17.addConstraint(Sketcher.Constraint("Equal", 8, 10))
sketch17.addConstraint(Sketcher.Constraint("Equal", 10, 11))
sketch17.addConstraint(Sketcher.Constraint("Equal", 11, 12))
sketch17.addConstraint(Sketcher.Constraint("Equal", 12, 14))
sketch17.addConstraint(Sketcher.Constraint("Equal", 14, 15))
sketch17.addConstraint(Sketcher.Constraint("Symmetric", 0, 3, 8, 3, -1, 1))
sketch17.addConstraint(Sketcher.Constraint("Symmetric", 2, 3, 10, 3, -1, 1))
sketch17.addConstraint(Sketcher.Constraint("Symmetric", 3, 3, 11, 3, -1, 1))
sketch17.addConstraint(Sketcher.Constraint("Symmetric", 4, 3, 12, 3, -1, 1))
sketch17.addConstraint(Sketcher.Constraint("Symmetric", 6, 3, 14, 3, -1, 1))
sketch17.addConstraint(Sketcher.Constraint("Symmetric", 7, 3, 15, 3, -1, 1))
sketch17.addConstraint(Sketcher.Constraint("Symmetric", 2, 3, 8, 3, -2))
sketch17.addConstraint(Sketcher.Constraint("Symmetric", 7, 3, 11, 3, -2))
sketch17.addConstraint(Sketcher.Constraint("Symmetric", 6, 3, 12, 3, -2))
sketch17.addConstraint(Sketcher.Constraint("Horizontal", 2, 3, 4, 3))
sketch17.addConstraint(Sketcher.Constraint("Horizontal", 2, 1, 3, 2))
sketch17.addConstraint(Sketcher.Constraint("Horizontal", 1, 2, 4, 1))
sketch17.addConstraint(Sketcher.Constraint("Horizontal", 4, 1, 8, 1))
sketch17.addConstraint(Sketcher.Constraint("Horizontal", 9, 2, 12, 1))
sketch17.addConstraint(Sketcher.Constraint("Radius", 0, 1.0))
sketch17.addConstraint(Sketcher.Constraint("DistanceY", 3, 3, -1, 1, 5.0))
sketch17.addConstraint(Sketcher.Constraint("DistanceX", -1, 1, 3, 3, 90.3))
sketch17.addConstraint(Sketcher.Constraint("DistanceX", -1, 1, 0, 1, 91.9))
sketch17.addConstraint(Sketcher.Constraint("DistanceY", 1, 2, 1, 1, 5.171573))
sketch17.addConstraint(Sketcher.Constraint("DistanceY", 2, 3, 0, 1, 5.87868))
sketch17.setExpression("Constraints[45]", "Params.sketch17_radius")
pocket14 = body.newObject("PartDesign::Pocket", "Pocket013")
pocket14.Profile = sketch17
pocket14.setExpression("Length", "Params.pocket14_length")
pocket14.Reversed = True

# Sketch on XY plane
sketch18 = body.newObject("Sketcher::SketchObject", "Sketch017")
sketch18.AttachmentSupport = (doc.getObject("XY_Plane"), [""])
sketch18.MapMode = "FlatFace"
sketch18.addGeometry(Part.LineSegment(Vector(-91.75, 10, 0), Vector(-92.5, 10, 0)), False)
sketch18.addGeometry(Part.LineSegment(Vector(-92.5, 10, 0), Vector(-92.5, 6.187434, 0)), False)
sketch18.addGeometry(Part.ArcOfCircle(Part.Circle(Vector(-90.3, 5, 0), Vector(0, 0, 1), 2.5), math.radians(125.450543), math.radians(151.642363)), False)
sketch18.addGeometry(Part.LineSegment(Vector(-91.75, 7.036541, 0), Vector(-91.75, 10, 0)), False)
sketch18.addConstraint(Sketcher.Constraint("Coincident", 0, 2, 1, 1))
sketch18.addConstraint(Sketcher.Constraint("Coincident", 1, 2, 2, 2))
sketch18.addConstraint(Sketcher.Constraint("Coincident", 2, 1, 3, 1))
sketch18.addConstraint(Sketcher.Constraint("Coincident", 3, 2, 0, 1))
sketch18.addConstraint(Sketcher.Constraint("Horizontal", 0))
sketch18.addConstraint(Sketcher.Constraint("Vertical", 1))
sketch18.addConstraint(Sketcher.Constraint("Vertical", 3))
sketch18.addConstraint(Sketcher.Constraint("Radius", 2, 2.5))
sketch18.addConstraint(Sketcher.Constraint("DistanceY", -1, 1, 2, 3, 5.0))
sketch18.addConstraint(Sketcher.Constraint("DistanceY", -1, 1, 0, 2, 10.0))
sketch18.addConstraint(Sketcher.Constraint("DistanceX", 0, 2, 0, 1, 0.75))
sketch18.addConstraint(Sketcher.Constraint("DistanceX", 2, 3, -1, 1, 90.3))
sketch18.addConstraint(Sketcher.Constraint("DistanceX", 0, 2, -1, 1, 92.5))
sketch18.setExpression("Constraints[7]", "Params.sketch18_radius")
sketch18.setExpression("Constraints[10]", "Params.sketch18_width")
pocket15 = body.newObject("PartDesign::Pocket", "Pocket014")
pocket15.Profile = sketch18
pocket15.Type = "UpToFirst"

# Sketch on XY plane
sketch19 = body.newObject("Sketcher::SketchObject", "Sketch018")
sketch19.AttachmentSupport = (doc.getObject("XY_Plane"), [""])
sketch19.MapMode = "FlatFace"
sketch19.addGeometry(Part.ArcOfCircle(Part.Circle(Vector(-90.3, -5, 0), Vector(0, 0, 1), 2.5), math.radians(-151.642363), math.radians(-125.450543)), False)
sketch19.addGeometry(Part.LineSegment(Vector(-92.5, -6.187434, 0), Vector(-92.5, -10, 0)), False)
sketch19.addGeometry(Part.LineSegment(Vector(-92.5, -10, 0), Vector(-91.75, -10, 0)), False)
sketch19.addGeometry(Part.LineSegment(Vector(-91.75, -10, 0), Vector(-91.75, -7.036541, 0)), False)
sketch19.addConstraint(Sketcher.Constraint("Coincident", 0, 1, 1, 1))
sketch19.addConstraint(Sketcher.Constraint("Coincident", 1, 2, 2, 1))
sketch19.addConstraint(Sketcher.Constraint("Coincident", 2, 2, 3, 1))
sketch19.addConstraint(Sketcher.Constraint("Coincident", 3, 2, 0, 2))
sketch19.addConstraint(Sketcher.Constraint("Vertical", 1))
sketch19.addConstraint(Sketcher.Constraint("Horizontal", 2))
sketch19.addConstraint(Sketcher.Constraint("Vertical", 3))
sketch19.addConstraint(Sketcher.Constraint("Radius", 0, 2.5))
sketch19.addConstraint(Sketcher.Constraint("DistanceY", 0, 3, -1, 1, 5.0))
sketch19.addConstraint(Sketcher.Constraint("DistanceY", 1, 2, -1, 1, 10.0))
sketch19.addConstraint(Sketcher.Constraint("DistanceX", 2, 1, 2, 2, 0.75))
sketch19.addConstraint(Sketcher.Constraint("DistanceX", 0, 3, -1, 1, 90.3))
sketch19.addConstraint(Sketcher.Constraint("DistanceX", 0, 1, -1, 1, 92.5))
sketch19.setExpression("Constraints[7]", "Params.sketch19_radius")
sketch19.setExpression("Constraints[10]", "Params.sketch19_width")
pocket16 = body.newObject("PartDesign::Pocket", "Pocket015")
pocket16.Profile = sketch19
pocket16.Type = "UpToFirst"

# Sketch on XY plane
sketch20 = body.newObject("Sketcher::SketchObject", "Sketch019")
sketch20.AttachmentSupport = (doc.getObject("XY_Plane"), [""])
sketch20.MapMode = "FlatFace"
sketch20.addGeometry(Part.LineSegment(Vector(92.5, 10, 0), Vector(91.75, 10, 0)), False)
sketch20.addGeometry(Part.LineSegment(Vector(91.75, 10, 0), Vector(91.75, 7.036541, 0)), False)
sketch20.addGeometry(Part.ArcOfCircle(Part.Circle(Vector(90.3, 5, 0), Vector(0, 0, 1), 2.5), math.radians(28.357637), math.radians(54.549457)), False)
sketch20.addGeometry(Part.LineSegment(Vector(92.5, 6.187434, 0), Vector(92.5, 10, 0)), False)
sketch20.addConstraint(Sketcher.Constraint("Coincident", 0, 2, 1, 1))
sketch20.addConstraint(Sketcher.Constraint("Coincident", 1, 2, 2, 2))
sketch20.addConstraint(Sketcher.Constraint("Coincident", 2, 1, 3, 1))
sketch20.addConstraint(Sketcher.Constraint("Coincident", 3, 2, 0, 1))
sketch20.addConstraint(Sketcher.Constraint("Horizontal", 0))
sketch20.addConstraint(Sketcher.Constraint("Vertical", 1))
sketch20.addConstraint(Sketcher.Constraint("Vertical", 3))
sketch20.addConstraint(Sketcher.Constraint("Radius", 2, 2.5))
sketch20.addConstraint(Sketcher.Constraint("DistanceY", -1, 1, 2, 3, 5.0))
sketch20.addConstraint(Sketcher.Constraint("DistanceY", -1, 1, 0, 2, 10.0))
sketch20.addConstraint(Sketcher.Constraint("DistanceX", 0, 2, 0, 1, 0.75))
sketch20.addConstraint(Sketcher.Constraint("DistanceX", -1, 1, 2, 3, 90.3))
sketch20.addConstraint(Sketcher.Constraint("DistanceX", -1, 1, 2, 1, 92.5))
sketch20.setExpression("Constraints[7]", "Params.sketch20_radius")
sketch20.setExpression("Constraints[10]", "Params.sketch20_width")
pocket17 = body.newObject("PartDesign::Pocket", "Pocket016")
pocket17.Profile = sketch20
pocket17.Type = "UpToFirst"

# Sketch on XY plane
sketch21 = body.newObject("Sketcher::SketchObject", "Sketch020")
sketch21.AttachmentSupport = (doc.getObject("XY_Plane"), [""])
sketch21.MapMode = "FlatFace"
sketch21.addGeometry(Part.ArcOfCircle(Part.Circle(Vector(90.3, -5, 0), Vector(0, 0, 1), 2.5), math.radians(-54.549457), math.radians(-28.357637)), False)
sketch21.addGeometry(Part.LineSegment(Vector(91.75, -7.036541, 0), Vector(91.75, -10, 0)), False)
sketch21.addGeometry(Part.LineSegment(Vector(91.75, -10, 0), Vector(92.5, -10, 0)), False)
sketch21.addGeometry(Part.LineSegment(Vector(92.5, -10, 0), Vector(92.5, -6.187434, 0)), False)
sketch21.addConstraint(Sketcher.Constraint("Coincident", 0, 1, 1, 1))
sketch21.addConstraint(Sketcher.Constraint("Coincident", 1, 2, 2, 1))
sketch21.addConstraint(Sketcher.Constraint("Coincident", 2, 2, 3, 1))
sketch21.addConstraint(Sketcher.Constraint("Coincident", 3, 2, 0, 2))
sketch21.addConstraint(Sketcher.Constraint("Vertical", 1))
sketch21.addConstraint(Sketcher.Constraint("Horizontal", 2))
sketch21.addConstraint(Sketcher.Constraint("Vertical", 3))
sketch21.addConstraint(Sketcher.Constraint("Radius", 0, 2.5))
sketch21.addConstraint(Sketcher.Constraint("DistanceY", 0, 3, -1, 1, 5.0))
sketch21.addConstraint(Sketcher.Constraint("DistanceY", 1, 2, -1, 1, 10.0))
sketch21.addConstraint(Sketcher.Constraint("DistanceX", 2, 1, 2, 2, 0.75))
sketch21.addConstraint(Sketcher.Constraint("DistanceX", -1, 1, 0, 3, 90.3))
sketch21.addConstraint(Sketcher.Constraint("DistanceX", -1, 1, 2, 2, 92.5))
sketch21.setExpression("Constraints[7]", "Params.sketch21_radius")
sketch21.setExpression("Constraints[10]", "Params.sketch21_width")
pocket18 = body.newObject("PartDesign::Pocket", "Pocket017")
pocket18.Profile = sketch21
pocket18.Type = "UpToFirst"
doc.recompute()

fillet = body.newObject("PartDesign::Fillet", "Fillet")
fillet.Base = (pocket18, edges_at(pocket18, [
    (-91.75, 7.037, -1.45),
    (-92.5, 6.187, -1.45),
    (-92.5, -6.187, -1.45),
    (-91.75, -7.037, -1.45),
    (91.75, 7.037, -1.45),
    (92.5, 6.187, -1.45),
    (92.5, -6.187, -1.45),
    (91.75, -7.037, -1.45),
]))
fillet.setExpression("Radius", "Params.fillet_radius")

# Sketch on XY plane
sketch22 = body.newObject("Sketcher::SketchObject", "Sketch021")
sketch22.AttachmentSupport = (doc.getObject("XY_Plane"), [""])
sketch22.MapMode = "FlatFace"
sketch22.addGeometry(Part.LineSegment(Vector(-62.5, 10, 0), Vector(-62.5, -10, 0)), False)
sketch22.addGeometry(Part.LineSegment(Vector(-62.5, -10, 0), Vector(92.5, -10, 0)), False)
sketch22.addGeometry(Part.LineSegment(Vector(92.5, -10, 0), Vector(92.5, 10, 0)), False)
sketch22.addGeometry(Part.LineSegment(Vector(92.5, 10, 0), Vector(-62.5, 10, 0)), False)
sketch22.addConstraint(Sketcher.Constraint("Coincident", 0, 2, 1, 1))
sketch22.addConstraint(Sketcher.Constraint("Coincident", 1, 2, 2, 1))
sketch22.addConstraint(Sketcher.Constraint("Coincident", 2, 2, 3, 1))
sketch22.addConstraint(Sketcher.Constraint("Coincident", 3, 2, 0, 1))
sketch22.addConstraint(Sketcher.Constraint("Vertical", 0))
sketch22.addConstraint(Sketcher.Constraint("Horizontal", 1))
sketch22.addConstraint(Sketcher.Constraint("Vertical", 2))
sketch22.addConstraint(Sketcher.Constraint("Horizontal", 3))
sketch22.addConstraint(Sketcher.Constraint("DistanceX", 1, 1, 1, 2, 155.0))
sketch22.addConstraint(Sketcher.Constraint("DistanceY", 0, 2, 0, 1, 20.0))
sketch22.addConstraint(Sketcher.Constraint("DistanceY", 0, 2, -1, 1, 10.0))
sketch22.addConstraint(Sketcher.Constraint("DistanceX", 0, 2, -1, 1, 62.5))
sketch22.setExpression("Constraints[8]", "Params.sketch22_width")
sketch22.setExpression("Constraints[9]", "Params.sketch22_height")
pocket19 = body.newObject("PartDesign::Pocket", "Pocket018")
pocket19.Profile = sketch22
pocket19.Type = "UpToFirst"

doc.recompute()
